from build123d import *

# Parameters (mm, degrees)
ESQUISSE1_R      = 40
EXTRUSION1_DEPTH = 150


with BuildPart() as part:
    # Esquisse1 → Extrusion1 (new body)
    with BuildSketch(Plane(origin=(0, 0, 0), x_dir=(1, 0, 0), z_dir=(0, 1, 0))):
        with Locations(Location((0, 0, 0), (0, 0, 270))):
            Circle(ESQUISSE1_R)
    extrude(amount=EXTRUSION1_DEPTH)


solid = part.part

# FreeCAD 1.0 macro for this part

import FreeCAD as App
import Part
import Sketcher

V = App.Vector

doc = App.newDocument("Part")
params = doc.addObject("Spreadsheet::Sheet", "Params")
for row, (alias, value) in enumerate([
    ("sketch1_diameter", "80 mm"),
    ("pad1_length", "150 mm"),
], start=1):
    params.set(f"A{row}", alias)
    params.set(f"B{row}", "=" + value)
    params.setAlias(f"B{row}", alias)

body = doc.addObject("PartDesign::Body", "Body")

sketch1 = body.newObject("Sketcher::SketchObject", "Sketch")
sketch1.AttachmentSupport = (doc.getObject("XZ_Plane"), [""])
sketch1.MapMode = "FlatFace"
sketch1.addGeometry(Part.Circle(V(0, 0, 0), V(0, 0, 1), 40), False)
sketch1.addConstraint(Sketcher.Constraint("Coincident", 0, 3, -1, 1))
sketch1.addConstraint(Sketcher.Constraint("Diameter", 0, 80.0))
sketch1.setExpression("Constraints[1]", "Params.sketch1_diameter")
pad1 = body.newObject("PartDesign::Pad", "Pad")
pad1.Profile = sketch1
pad1.setExpression("Length", "Params.pad1_length")
pad1.Reversed = True

doc.recompute()
